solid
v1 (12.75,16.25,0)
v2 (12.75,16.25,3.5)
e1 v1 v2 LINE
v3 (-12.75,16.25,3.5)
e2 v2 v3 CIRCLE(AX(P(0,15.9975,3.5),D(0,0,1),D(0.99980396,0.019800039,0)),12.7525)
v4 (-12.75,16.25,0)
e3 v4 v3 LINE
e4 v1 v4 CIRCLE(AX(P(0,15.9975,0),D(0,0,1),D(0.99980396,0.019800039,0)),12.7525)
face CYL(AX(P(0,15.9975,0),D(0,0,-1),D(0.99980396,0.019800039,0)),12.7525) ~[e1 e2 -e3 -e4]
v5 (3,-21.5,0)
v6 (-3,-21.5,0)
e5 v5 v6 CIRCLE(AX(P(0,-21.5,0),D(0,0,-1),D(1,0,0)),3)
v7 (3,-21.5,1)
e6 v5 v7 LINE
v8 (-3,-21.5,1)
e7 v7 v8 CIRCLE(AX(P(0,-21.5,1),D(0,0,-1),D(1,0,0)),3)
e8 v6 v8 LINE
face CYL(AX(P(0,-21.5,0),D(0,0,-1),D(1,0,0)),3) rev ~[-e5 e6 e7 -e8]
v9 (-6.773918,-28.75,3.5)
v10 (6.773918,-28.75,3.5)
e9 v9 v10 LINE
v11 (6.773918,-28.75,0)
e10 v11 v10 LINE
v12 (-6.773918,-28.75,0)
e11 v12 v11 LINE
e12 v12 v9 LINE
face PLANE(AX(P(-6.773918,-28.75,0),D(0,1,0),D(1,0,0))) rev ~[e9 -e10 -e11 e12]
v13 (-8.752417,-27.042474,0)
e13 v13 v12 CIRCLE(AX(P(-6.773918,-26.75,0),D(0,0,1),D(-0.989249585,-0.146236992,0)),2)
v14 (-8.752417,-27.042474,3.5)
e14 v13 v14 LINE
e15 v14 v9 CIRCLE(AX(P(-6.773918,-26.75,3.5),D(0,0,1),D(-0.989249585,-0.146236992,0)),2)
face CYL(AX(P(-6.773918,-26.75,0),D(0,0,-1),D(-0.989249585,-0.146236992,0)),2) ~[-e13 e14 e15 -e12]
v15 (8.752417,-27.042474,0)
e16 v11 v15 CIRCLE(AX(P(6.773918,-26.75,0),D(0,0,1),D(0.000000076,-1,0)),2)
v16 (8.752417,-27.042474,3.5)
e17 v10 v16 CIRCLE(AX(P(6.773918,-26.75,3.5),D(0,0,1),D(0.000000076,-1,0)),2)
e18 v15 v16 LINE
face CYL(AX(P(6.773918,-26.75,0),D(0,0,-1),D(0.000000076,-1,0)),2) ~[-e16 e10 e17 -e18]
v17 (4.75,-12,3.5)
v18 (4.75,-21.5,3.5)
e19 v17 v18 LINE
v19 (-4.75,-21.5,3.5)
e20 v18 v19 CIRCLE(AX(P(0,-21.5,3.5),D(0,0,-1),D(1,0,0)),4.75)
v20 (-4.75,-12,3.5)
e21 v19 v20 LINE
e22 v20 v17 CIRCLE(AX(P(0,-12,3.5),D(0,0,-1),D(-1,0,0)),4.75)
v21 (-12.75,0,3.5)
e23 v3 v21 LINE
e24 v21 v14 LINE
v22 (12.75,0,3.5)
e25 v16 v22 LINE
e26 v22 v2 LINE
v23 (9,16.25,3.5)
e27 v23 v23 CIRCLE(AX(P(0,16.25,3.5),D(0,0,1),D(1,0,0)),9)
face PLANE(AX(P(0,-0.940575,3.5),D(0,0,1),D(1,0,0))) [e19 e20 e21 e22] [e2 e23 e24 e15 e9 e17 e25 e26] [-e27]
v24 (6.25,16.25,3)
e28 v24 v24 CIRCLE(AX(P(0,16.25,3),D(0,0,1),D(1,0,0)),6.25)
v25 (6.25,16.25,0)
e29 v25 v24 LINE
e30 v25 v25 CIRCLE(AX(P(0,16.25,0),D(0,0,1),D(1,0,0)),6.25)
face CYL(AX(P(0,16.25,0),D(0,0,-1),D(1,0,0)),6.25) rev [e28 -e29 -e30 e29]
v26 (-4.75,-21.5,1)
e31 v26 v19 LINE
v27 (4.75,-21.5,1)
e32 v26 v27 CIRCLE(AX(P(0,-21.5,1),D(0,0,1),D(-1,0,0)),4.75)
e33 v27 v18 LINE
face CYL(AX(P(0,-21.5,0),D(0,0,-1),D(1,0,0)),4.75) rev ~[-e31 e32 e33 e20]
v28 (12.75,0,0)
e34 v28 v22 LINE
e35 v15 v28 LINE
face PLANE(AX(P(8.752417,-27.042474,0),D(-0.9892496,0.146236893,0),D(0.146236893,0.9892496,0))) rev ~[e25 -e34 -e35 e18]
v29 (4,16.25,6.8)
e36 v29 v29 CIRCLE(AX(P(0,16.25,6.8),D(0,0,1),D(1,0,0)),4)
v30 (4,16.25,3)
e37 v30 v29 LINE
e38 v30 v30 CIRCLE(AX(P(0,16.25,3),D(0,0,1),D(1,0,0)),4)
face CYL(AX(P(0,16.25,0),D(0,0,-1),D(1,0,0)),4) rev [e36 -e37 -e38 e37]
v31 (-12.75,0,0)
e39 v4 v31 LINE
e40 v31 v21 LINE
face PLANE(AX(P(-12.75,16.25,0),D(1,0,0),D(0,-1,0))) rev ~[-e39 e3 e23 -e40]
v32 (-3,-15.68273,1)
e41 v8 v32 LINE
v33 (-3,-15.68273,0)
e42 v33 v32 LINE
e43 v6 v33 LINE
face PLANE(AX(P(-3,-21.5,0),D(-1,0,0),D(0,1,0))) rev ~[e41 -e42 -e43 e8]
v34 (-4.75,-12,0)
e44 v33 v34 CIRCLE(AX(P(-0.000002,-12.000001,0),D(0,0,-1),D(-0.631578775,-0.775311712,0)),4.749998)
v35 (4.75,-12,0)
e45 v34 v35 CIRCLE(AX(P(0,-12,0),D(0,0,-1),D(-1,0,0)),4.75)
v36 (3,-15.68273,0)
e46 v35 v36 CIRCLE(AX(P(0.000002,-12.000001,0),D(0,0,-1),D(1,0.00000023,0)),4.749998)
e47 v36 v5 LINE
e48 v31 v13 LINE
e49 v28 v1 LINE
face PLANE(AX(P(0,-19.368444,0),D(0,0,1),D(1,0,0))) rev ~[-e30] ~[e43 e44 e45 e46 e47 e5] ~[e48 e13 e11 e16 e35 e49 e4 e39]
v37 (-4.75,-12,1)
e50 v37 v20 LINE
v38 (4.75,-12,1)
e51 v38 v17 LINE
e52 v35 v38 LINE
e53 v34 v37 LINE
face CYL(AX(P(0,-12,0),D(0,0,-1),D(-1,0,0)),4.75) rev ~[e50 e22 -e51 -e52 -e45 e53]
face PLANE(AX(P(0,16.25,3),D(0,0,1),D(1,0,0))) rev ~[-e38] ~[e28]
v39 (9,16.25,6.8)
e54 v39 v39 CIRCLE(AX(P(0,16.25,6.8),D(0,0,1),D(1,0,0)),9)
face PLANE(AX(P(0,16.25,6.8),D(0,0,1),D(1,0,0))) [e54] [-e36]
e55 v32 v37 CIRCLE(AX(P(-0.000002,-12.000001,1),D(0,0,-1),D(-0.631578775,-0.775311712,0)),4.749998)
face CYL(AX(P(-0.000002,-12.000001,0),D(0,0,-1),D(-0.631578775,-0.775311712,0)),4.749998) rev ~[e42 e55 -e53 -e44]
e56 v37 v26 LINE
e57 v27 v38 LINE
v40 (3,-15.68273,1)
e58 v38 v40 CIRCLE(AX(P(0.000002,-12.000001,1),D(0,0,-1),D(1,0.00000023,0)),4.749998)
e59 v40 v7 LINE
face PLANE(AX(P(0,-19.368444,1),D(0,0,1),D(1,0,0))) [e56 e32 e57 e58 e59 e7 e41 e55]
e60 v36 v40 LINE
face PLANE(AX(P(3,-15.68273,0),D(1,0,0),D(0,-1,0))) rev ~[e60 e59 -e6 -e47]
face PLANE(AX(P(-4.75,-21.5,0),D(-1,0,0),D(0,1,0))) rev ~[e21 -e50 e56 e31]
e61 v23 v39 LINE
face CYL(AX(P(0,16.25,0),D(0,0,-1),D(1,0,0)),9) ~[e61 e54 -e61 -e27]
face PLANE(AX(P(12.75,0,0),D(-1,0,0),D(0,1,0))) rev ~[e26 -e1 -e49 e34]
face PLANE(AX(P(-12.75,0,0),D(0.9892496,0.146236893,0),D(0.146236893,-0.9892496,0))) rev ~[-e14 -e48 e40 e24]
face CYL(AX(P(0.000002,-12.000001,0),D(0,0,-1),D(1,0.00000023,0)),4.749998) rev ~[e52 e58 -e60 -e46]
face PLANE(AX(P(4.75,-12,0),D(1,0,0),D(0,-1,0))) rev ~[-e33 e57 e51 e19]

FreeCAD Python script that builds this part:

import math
import FreeCAD as App
import Part
import Sketcher
Q = App.Units.Quantity

doc = App.newDocument("Part")
body = doc.addObject("PartDesign::Body", "Body")

sketch1 = body.newObject("Sketcher::SketchObject", "Sketch")
sketch1.AttachmentSupport = (doc.getObject("XY_Plane"), [""])
sketch1.MapMode = "FlatFace"
sketch1.addGeometry([
    Part.ArcOfCircle(Part.Circle(App.Vector(-6.8, -26.8, 0), App.Vector(0, 0, 1), 2), math.radians(-172), math.radians(-90)),
    Part.LineSegment(App.Vector(-6.8, -28.8, 0), App.Vector(6.8, -28.8, 0)),
    Part.ArcOfCircle(Part.Circle(App.Vector(6.8, -26.8, 0), App.Vector(0, 0, 1), 2), math.radians(-90), math.radians(-8)),
    Part.LineSegment(App.Vector(8.8, -27, 0), App.Vector(12.8, 0, 0)),
    Part.LineSegment(App.Vector(12.8, 0, 0), App.Vector(12.8, 16.2, 0)),
    Part.ArcOfCircle(Part.Circle(App.Vector(0, 16, 0), App.Vector(0, 0, 1), 12.8), math.radians(1), math.radians(179)),
    Part.LineSegment(App.Vector(-12.8, 16.2, 0), App.Vector(-12.8, 0, 0)),
    Part.LineSegment(App.Vector(-12.8, 0, 0), App.Vector(-8.8, -27, 0)),
    Part.ArcOfCircle(Part.Circle(App.Vector(0, -21.5, 0), App.Vector(0, 0, 1), 4.8), math.radians(180), math.radians(360)),
    Part.LineSegment(App.Vector(-4.8, -21.5, 0), App.Vector(-4.8, -12, 0)),
    Part.ArcOfCircle(Part.Circle(App.Vector(0, -12, 0), App.Vector(0, 0, 1), 4.8), math.radians(0), math.radians(180)),
    Part.LineSegment(App.Vector(4.8, -12, 0), App.Vector(4.8, -21.5, 0)),
    Part.Circle(App.Vector(0, 16.2, 0), App.Vector(0, 0, 1), 9),
], False)
sketch1.addConstraint([
    Sketcher.Constraint("Tangent", 0, 2, 1, 1),
    Sketcher.Constraint("Tangent", 1, 2, 2, 1),
    Sketcher.Constraint("Tangent", 2, 2, 3, 1),
    Sketcher.Constraint("Coincident", 3, 2, 4, 1),
    Sketcher.Constraint("Coincident", 4, 2, 5, 1),
    Sketcher.Constraint("Coincident", 5, 2, 6, 1),
    Sketcher.Constraint("Coincident", 6, 2, 7, 1),
    Sketcher.Constraint("Tangent", 7, 2, 0, 1),
    Sketcher.Constraint("Tangent", 8, 1, 9, 1),
    Sketcher.Constraint("Tangent", 9, 2, 10, 2),
    Sketcher.Constraint("Tangent", 10, 1, 11, 1),
    Sketcher.Constraint("Tangent", 11, 2, 8, 2),
    Sketcher.Constraint("Horizontal", 1),
    Sketcher.Constraint("Vertical", 4),
    Sketcher.Constraint("Vertical", 6),
    Sketcher.Constraint("Vertical", 9),
    Sketcher.Constraint("Vertical", 11),
    Sketcher.Constraint("Equal", 0, 2),
    Sketcher.Constraint("Symmetric", 3, 2, 6, 2, -1, 1),
    Sketcher.Constraint("Symmetric", 2, 2, 7, 2, -2),
    Sketcher.Constraint("PointOnObject", 5, 3, -2),
    Sketcher.Constraint("PointOnObject", 8, 3, -2),
    Sketcher.Constraint("PointOnObject", 12, 3, -2),
    Sketcher.Constraint("Horizontal", 12, 3, 4, 2),
    Sketcher.Constraint("Diameter", 12, Q("18 mm")),
    Sketcher.Constraint("Radius", 0, Q("2 mm")),
    Sketcher.Constraint("Radius", 8, Q("4.75 mm")),
    Sketcher.Constraint("DistanceY", 9, 1, 9, 2, Q("9.5 mm")),
    Sketcher.Constraint("DistanceY", 10, 3, -1, 1, Q("12 mm")),
    Sketcher.Constraint("DistanceY", 0, 3, 12, 3, Q("43 mm")),
    Sketcher.Constraint("DistanceX", 6, 2, 9, 2, Q("8 mm")),
    Sketcher.Constraint("DistanceY", 4, 1, 4, 2, Q("16.25 mm")),
    Sketcher.Constraint("Radius", 5, Q("12.7525 mm")),
    Sketcher.Constraint("DistanceX", 2, 3, 2, 2, Q("1.978499 mm")),
])
pad1 = body.newObject("PartDesign::Pad", "Pad")
pad1.Profile = sketch1
pad1.Length = 3.5

sketch2 = body.newObject("Sketcher::SketchObject", "Sketch001")
sketch2.AttachmentSupport = (doc.getObject("XY_Plane"), [""])
sketch2.MapMode = "FlatFace"
sketch2.addGeometry([
    Part.ArcOfCircle(Part.Circle(App.Vector(0, -12, 0), App.Vector(0, 0, 1), 4.7), math.radians(180), math.radians(231)),
    Part.LineSegment(App.Vector(-4.8, -12, 0), App.Vector(-4.8, -21.5, 0)),
    Part.ArcOfCircle(Part.Circle(App.Vector(0, -21.5, 0), App.Vector(0, 0, 1), 4.8), math.radians(180), math.radians(360)),
    Part.LineSegment(App.Vector(4.8, -21.5, 0), App.Vector(4.8, -12, 0)),
    Part.ArcOfCircle(Part.Circle(App.Vector(0, -12, 0), App.Vector(0, 0, 1), 4.7), math.radians(-51), math.radians(0)),
    Part.LineSegment(App.Vector(3, -15.7, 0), App.Vector(3, -21.5, 0)),
    Part.ArcOfCircle(Part.Circle(App.Vector(0, -21.5, 0), App.Vector(0, 0, 1), 3), math.radians(180), math.radians(360)),
    Part.LineSegment(App.Vector(-3, -21.5, 0), App.Vector(-3, -15.7, 0)),
], False)
sketch2.addConstraint([
    Sketcher.Constraint("Tangent", 0, 1, 1, 1),
    Sketcher.Constraint("Tangent", 1, 2, 2, 1),
    Sketcher.Constraint("Tangent", 2, 2, 3, 1),
    Sketcher.Constraint("Tangent", 3, 2, 4, 2),
    Sketcher.Constraint("Coincident", 4, 1, 5, 1),
    Sketcher.Constraint("Tangent", 5, 2, 6, 2),
    Sketcher.Constraint("Tangent", 6, 1, 7, 1),
    Sketcher.Constraint("Coincident", 7, 2, 0, 2),
    Sketcher.Constraint("Vertical", 1),
    Sketcher.Constraint("Vertical", 3),
    Sketcher.Constraint("Vertical", 5),
    Sketcher.Constraint("Vertical", 7),
    Sketcher.Constraint("Coincident", 4, 3, 0, 3),
    Sketcher.Constraint("Coincident", 6, 3, 2, 3),
    Sketcher.Constraint("Equal", 0, 4),
    Sketcher.Constraint("PointOnObject", 2, 3, -2),
    Sketcher.Constraint("Radius", 6, Q("3 mm")),
    Sketcher.Constraint("Radius", 2, Q("4.75 mm")),
    Sketcher.Constraint("DistanceY", 1, 2, 1, 1, Q("9.5 mm")),
    Sketcher.Constraint("DistanceY", 0, 3, -1, 1, Q("12.000001 mm")),
])
pad2 = body.newObject("PartDesign::Pad", "Pad001")
pad2.Profile = sketch2
pad2.Length = 1

sketch3 = body.newObject("Sketcher::SketchObject", "Sketch002")
sketch3.AttachmentSupport = (doc.getObject("XY_Plane"), [""])
sketch3.MapMode = "FlatFace"
sketch3.addGeometry([
    Part.Circle(App.Vector(0, 16.2, 0), App.Vector(0, 0, 1), 9),
    Part.Circle(App.Vector(0, 16.2, 0), App.Vector(0, 0, 1), 4),
], False)
sketch3.addConstraint([
    Sketcher.Constraint("Coincident", 1, 3, 0, 3),
    Sketcher.Constraint("PointOnObject", 0, 3, -2),
    Sketcher.Constraint("Diameter", 0, Q("18 mm")),
    Sketcher.Constraint("Diameter", 1, Q("8 mm")),
    Sketcher.Constraint("DistanceY", -1, 1, 0, 3, Q("16.25 mm")),
])
pad3 = body.newObject("PartDesign::Pad", "Pad002")
pad3.Profile = sketch3
pad3.Length = 6.8

sketch4 = body.newObject("Sketcher::SketchObject", "Sketch003")
sketch4.AttachmentSupport = (doc.getObject("XY_Plane"), [""])
sketch4.MapMode = "FlatFace"
sketch4.addGeometry([
    Part.Circle(App.Vector(0, 16.2, 0), App.Vector(0, 0, 1), 6.2),
    Part.Circle(App.Vector(0, 16.2, 0), App.Vector(0, 0, 1), 4),
], False)
sketch4.addConstraint([
    Sketcher.Constraint("Coincident", 1, 3, 0, 3),
    Sketcher.Constraint("PointOnObject", 0, 3, -2),
    Sketcher.Constraint("Diameter", 1, Q("8 mm")),
    Sketcher.Constraint("Diameter", 0, Q("12.5 mm")),
    Sketcher.Constraint("DistanceY", -1, 1, 0, 3, Q("16.25 mm")),
])
pocket1 = body.newObject("PartDesign::Pocket", "Pocket")
pocket1.Profile = sketch4
pocket1.Length = 3
pocket1.Reversed = True

doc.recompute()
